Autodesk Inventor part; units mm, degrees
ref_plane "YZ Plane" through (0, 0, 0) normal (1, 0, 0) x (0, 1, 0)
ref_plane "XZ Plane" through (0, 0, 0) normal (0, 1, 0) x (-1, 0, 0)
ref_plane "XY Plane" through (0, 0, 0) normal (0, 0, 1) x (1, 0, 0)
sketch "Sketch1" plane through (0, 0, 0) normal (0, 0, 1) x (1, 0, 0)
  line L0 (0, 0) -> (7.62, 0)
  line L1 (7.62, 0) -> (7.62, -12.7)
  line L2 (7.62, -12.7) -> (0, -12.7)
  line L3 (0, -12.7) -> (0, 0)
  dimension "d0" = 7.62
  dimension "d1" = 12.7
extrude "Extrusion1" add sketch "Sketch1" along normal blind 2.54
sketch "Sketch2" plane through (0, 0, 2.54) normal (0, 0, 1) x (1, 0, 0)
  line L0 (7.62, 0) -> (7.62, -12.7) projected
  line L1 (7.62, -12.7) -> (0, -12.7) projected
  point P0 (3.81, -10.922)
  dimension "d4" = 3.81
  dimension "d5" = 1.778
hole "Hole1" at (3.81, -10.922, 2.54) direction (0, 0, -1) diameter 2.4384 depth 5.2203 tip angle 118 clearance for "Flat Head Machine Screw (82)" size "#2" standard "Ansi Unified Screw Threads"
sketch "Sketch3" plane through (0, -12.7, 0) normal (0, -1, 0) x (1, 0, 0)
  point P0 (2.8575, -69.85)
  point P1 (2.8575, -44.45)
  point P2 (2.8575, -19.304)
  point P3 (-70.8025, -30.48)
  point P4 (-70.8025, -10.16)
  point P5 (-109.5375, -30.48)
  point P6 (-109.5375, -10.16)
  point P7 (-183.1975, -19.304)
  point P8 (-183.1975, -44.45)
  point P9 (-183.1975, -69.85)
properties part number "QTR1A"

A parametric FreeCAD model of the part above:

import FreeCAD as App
import Part
import Sketcher

V = App.Vector
Q = App.Units.Quantity


def add_polygon(sketch, points):
    """Adds a closed chain of lines whose ends are joined by coincident constraints."""
    first, n = sketch.GeometryCount, len(points)
    for a, b in zip(points, points[1:] + points[:1]):
        sketch.addGeometry(Part.LineSegment(App.Vector(*a, 0), App.Vector(*b, 0)), False)
    for i in range(n):
        sketch.addConstraint(Sketcher.Constraint("Coincident", first + i, 2, first + (i + 1) % n, 1))

doc = App.newDocument("Part")
body = doc.addObject("PartDesign::Body", "Body")

sketch1 = doc.addObject("Sketcher::SketchObject", "Sketch")
body.addObject(sketch1)
sketch1.AttachmentSupport = (doc.XY_Plane, [""])
sketch1.MapMode = "FlatFace"
add_polygon(sketch1, [(8, 0), (0, 0), (0, -13), (8, -13)])
sketch1.addConstraint([
    Sketcher.Constraint("Horizontal", 0),
    Sketcher.Constraint("Vertical", 1),
    Sketcher.Constraint("Horizontal", 2),
    Sketcher.Constraint("Vertical", 3),
    Sketcher.Constraint("Coincident", 0, 2, -1, 1),
    Sketcher.Constraint("DistanceX", 0, 2, 0, 1, Q("0.3 in")),
    Sketcher.Constraint("DistanceY", 1, 2, 1, 1, Q("0.5 in")),
])
pad1 = doc.addObject("PartDesign::Pad", "Pad")
body.addObject(pad1)
pad1.Profile = sketch1
pad1.Length = Q("0.1 in")

sketch2 = doc.addObject("Sketcher::SketchObject", "Sketch001")
body.addObject(sketch2)
sketch2.AttachmentSupport = (doc.XY_Plane, [""])
sketch2.MapMode = "FlatFace"
sketch2.AttachmentOffset = App.Placement(V(0, 0, 0.1 * 25.4), App.Rotation())
sketch2.addGeometry(Part.Circle(V(3.8, -10.9, 0), V(0, 0, 1), 1.2), False)
sketch2.addConstraint([
    Sketcher.Constraint("Diameter", 0, Q("0.096 in")),
    Sketcher.Constraint("DistanceX", -1, 1, 0, 3, Q("0.15 in")),
    Sketcher.Constraint("DistanceY", 0, 3, -1, 1, Q("0.43 in")),
])
doc.recompute()
hole = doc.addObject("PartDesign::Hole", "Hole")
body.addObject(hole)
hole.Profile = sketch2
hole.ThreadType = "None"
hole.Diameter = Q("0.096 in")
hole.DepthType = "Dimension"
hole.Depth = 5.2203
hole.DrillPoint = "Angled"
hole.DrillPointAngle = 118

doc.recompute()
